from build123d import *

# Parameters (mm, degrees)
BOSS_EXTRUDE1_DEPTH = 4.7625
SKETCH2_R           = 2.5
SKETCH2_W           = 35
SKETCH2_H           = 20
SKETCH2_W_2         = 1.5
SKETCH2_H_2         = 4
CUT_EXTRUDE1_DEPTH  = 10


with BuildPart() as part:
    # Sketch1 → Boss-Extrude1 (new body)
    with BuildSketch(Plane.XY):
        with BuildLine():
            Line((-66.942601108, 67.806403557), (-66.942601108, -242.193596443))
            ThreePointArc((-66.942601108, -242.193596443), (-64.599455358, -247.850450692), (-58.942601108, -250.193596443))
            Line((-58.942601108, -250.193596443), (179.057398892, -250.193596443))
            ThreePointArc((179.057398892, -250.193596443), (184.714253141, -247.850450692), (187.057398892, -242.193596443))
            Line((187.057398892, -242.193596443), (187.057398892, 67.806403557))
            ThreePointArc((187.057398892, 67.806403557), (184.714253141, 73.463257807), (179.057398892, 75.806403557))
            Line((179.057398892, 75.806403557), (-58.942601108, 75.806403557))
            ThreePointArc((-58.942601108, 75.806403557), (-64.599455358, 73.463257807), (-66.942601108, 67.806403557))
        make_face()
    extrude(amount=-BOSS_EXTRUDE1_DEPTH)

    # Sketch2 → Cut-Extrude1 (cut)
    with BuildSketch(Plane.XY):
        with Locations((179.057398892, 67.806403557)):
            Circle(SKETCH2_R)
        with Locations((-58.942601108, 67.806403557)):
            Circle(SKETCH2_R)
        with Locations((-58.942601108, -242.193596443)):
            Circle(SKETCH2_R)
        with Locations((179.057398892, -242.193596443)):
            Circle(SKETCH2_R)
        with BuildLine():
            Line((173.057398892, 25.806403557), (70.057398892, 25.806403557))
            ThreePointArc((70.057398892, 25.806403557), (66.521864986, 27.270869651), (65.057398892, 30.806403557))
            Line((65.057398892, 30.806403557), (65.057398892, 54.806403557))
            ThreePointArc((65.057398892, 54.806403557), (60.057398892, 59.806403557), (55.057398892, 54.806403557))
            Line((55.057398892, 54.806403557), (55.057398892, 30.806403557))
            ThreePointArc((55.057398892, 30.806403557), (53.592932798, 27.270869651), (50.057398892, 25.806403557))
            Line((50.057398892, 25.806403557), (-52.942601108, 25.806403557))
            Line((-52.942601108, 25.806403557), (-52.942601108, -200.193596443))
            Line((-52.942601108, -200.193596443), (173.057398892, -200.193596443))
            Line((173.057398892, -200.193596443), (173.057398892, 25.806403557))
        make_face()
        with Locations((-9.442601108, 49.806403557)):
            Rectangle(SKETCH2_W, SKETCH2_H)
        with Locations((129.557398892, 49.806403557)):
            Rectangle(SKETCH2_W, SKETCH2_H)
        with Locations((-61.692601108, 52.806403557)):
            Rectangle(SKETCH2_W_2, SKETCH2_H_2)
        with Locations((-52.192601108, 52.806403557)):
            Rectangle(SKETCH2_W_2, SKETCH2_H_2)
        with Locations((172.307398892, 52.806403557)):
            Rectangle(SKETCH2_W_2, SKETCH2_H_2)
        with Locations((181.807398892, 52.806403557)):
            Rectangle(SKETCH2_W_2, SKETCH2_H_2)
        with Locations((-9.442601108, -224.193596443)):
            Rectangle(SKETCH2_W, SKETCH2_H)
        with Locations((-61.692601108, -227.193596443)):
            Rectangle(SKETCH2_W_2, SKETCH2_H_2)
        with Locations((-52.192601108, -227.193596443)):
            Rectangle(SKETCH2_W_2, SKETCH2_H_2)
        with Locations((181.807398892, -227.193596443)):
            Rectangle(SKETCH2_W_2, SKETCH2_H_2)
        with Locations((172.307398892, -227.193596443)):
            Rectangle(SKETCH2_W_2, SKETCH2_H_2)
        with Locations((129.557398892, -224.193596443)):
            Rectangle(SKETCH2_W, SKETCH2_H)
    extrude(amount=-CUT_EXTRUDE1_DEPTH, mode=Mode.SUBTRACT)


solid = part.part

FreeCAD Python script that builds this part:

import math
import FreeCAD as App
import Part
import Sketcher
from FreeCAD import Vector

doc = App.newDocument("Part")
body = doc.addObject("PartDesign::Body", "Body")

# Sketch on XY plane
sketch1 = body.newObject("Sketcher::SketchObject", "Sketch")
sketch1.AttachmentSupport = (doc.getObject("XY_Plane"), [""])
sketch1.MapMode = "FlatFace"
sketch1.addGeometry(Part.LineSegment(Vector(-67, 68, 0), Vector(-67, -242, 0)), False)
sketch1.addGeometry(Part.ArcOfCircle(Part.Circle(Vector(-59, -242, 0), Vector(0, 0, 1), 8), math.radians(180), math.radians(270)), False)
sketch1.addGeometry(Part.LineSegment(Vector(-59, -250, 0), Vector(179, -250, 0)), False)
sketch1.addGeometry(Part.ArcOfCircle(Part.Circle(Vector(179, -242, 0), Vector(0, 0, 1), 8), math.radians(-90), math.radians(0)), False)
sketch1.addGeometry(Part.LineSegment(Vector(187, -242, 0), Vector(187, 68, 0)), False)
sketch1.addGeometry(Part.ArcOfCircle(Part.Circle(Vector(179, 68, 0), Vector(0, 0, 1), 8), math.radians(0), math.radians(90)), False)
sketch1.addGeometry(Part.LineSegment(Vector(179, 76, 0), Vector(-59, 76, 0)), False)
sketch1.addGeometry(Part.ArcOfCircle(Part.Circle(Vector(-59, 68, 0), Vector(0, 0, 1), 8), math.radians(90), math.radians(180)), False)
sketch1.addConstraint(Sketcher.Constraint("Tangent", 0, 2, 1, 1))
sketch1.addConstraint(Sketcher.Constraint("Tangent", 1, 2, 2, 1))
sketch1.addConstraint(Sketcher.Constraint("Tangent", 2, 2, 3, 1))
sketch1.addConstraint(Sketcher.Constraint("Tangent", 3, 2, 4, 1))
sketch1.addConstraint(Sketcher.Constraint("Tangent", 4, 2, 5, 1))
sketch1.addConstraint(Sketcher.Constraint("Tangent", 5, 2, 6, 1))
sketch1.addConstraint(Sketcher.Constraint("Tangent", 6, 2, 7, 1))
sketch1.addConstraint(Sketcher.Constraint("Tangent", 7, 2, 0, 1))
sketch1.addConstraint(Sketcher.Constraint("Vertical", 0))
sketch1.addConstraint(Sketcher.Constraint("Horizontal", 2))
sketch1.addConstraint(Sketcher.Constraint("Vertical", 4))
sketch1.addConstraint(Sketcher.Constraint("Horizontal", 6))
sketch1.addConstraint(Sketcher.Constraint("Equal", 1, 3))
sketch1.addConstraint(Sketcher.Constraint("Equal", 3, 5))
sketch1.addConstraint(Sketcher.Constraint("Equal", 5, 7))
sketch1.addConstraint(Sketcher.Constraint("Radius", 1, 8.0))
sketch1.addConstraint(Sketcher.Constraint("DistanceX", 2, 1, 2, 2, 238.0))
sketch1.addConstraint(Sketcher.Constraint("DistanceY", 0, 2, 0, 1, 310.0))
sketch1.addConstraint(Sketcher.Constraint("DistanceX", 1, 3, -1, 1, 58.942601))
sketch1.addConstraint(Sketcher.Constraint("DistanceY", 1, 3, -1, 1, 242.193596))
pad1 = body.newObject("PartDesign::Pad", "Pad")
pad1.Profile = sketch1
pad1.Length = 4.7625
pad1.Reversed = True

# Sketch on XY plane
sketch2 = body.newObject("Sketcher::SketchObject", "Sketch001")
sketch2.AttachmentSupport = (doc.getObject("XY_Plane"), [""])
sketch2.MapMode = "FlatFace"
sketch2.addGeometry(Part.Circle(Vector(179.1, 67.8, 0), Vector(0, 0, 1), 2.5), False)
sketch2.addGeometry(Part.Circle(Vector(-58.9, 67.8, 0), Vector(0, 0, 1), 2.5), False)
sketch2.addGeometry(Part.Circle(Vector(-58.9, -242.2, 0), Vector(0, 0, 1), 2.5), False)
sketch2.addGeometry(Part.Circle(Vector(179.1, -242.2, 0), Vector(0, 0, 1), 2.5), False)
sketch2.addGeometry(Part.LineSegment(Vector(173.1, 25.8, 0), Vector(70.1, 25.8, 0)), False)
sketch2.addGeometry(Part.ArcOfCircle(Part.Circle(Vector(70.1, 30.8, 0), Vector(0, 0, 1), 5), math.radians(180), math.radians(270)), False)
sketch2.addGeometry(Part.LineSegment(Vector(65.1, 30.8, 0), Vector(65.1, 54.8, 0)), False)
sketch2.addGeometry(Part.ArcOfCircle(Part.Circle(Vector(60.1, 54.8, 0), Vector(0, 0, 1), 5), math.radians(0), math.radians(180)), False)
sketch2.addGeometry(Part.LineSegment(Vector(55.1, 54.8, 0), Vector(55.1, 30.8, 0)), False)
sketch2.addGeometry(Part.ArcOfCircle(Part.Circle(Vector(50.1, 30.8, 0), Vector(0, 0, 1), 5), math.radians(-90), math.radians(0)), False)
sketch2.addGeometry(Part.LineSegment(Vector(50.1, 25.8, 0), Vector(-52.9, 25.8, 0)), False)
sketch2.addGeometry(Part.LineSegment(Vector(-52.9, 25.8, 0), Vector(-52.9, -200.2, 0)), False)
sketch2.addGeometry(Part.LineSegment(Vector(-52.9, -200.2, 0), Vector(173.1, -200.2, 0)), False)
sketch2.addGeometry(Part.LineSegment(Vector(173.1, -200.2, 0), Vector(173.1, 25.8, 0)), False)
sketch2.addGeometry(Part.LineSegment(Vector(-26.9, 59.8, 0), Vector(-26.9, 39.8, 0)), False)
sketch2.addGeometry(Part.LineSegment(Vector(-26.9, 39.8, 0), Vector(8.1, 39.8, 0)), False)
sketch2.addGeometry(Part.LineSegment(Vector(8.1, 39.8, 0), Vector(8.1, 59.8, 0)), False)
sketch2.addGeometry(Part.LineSegment(Vector(8.1, 59.8, 0), Vector(-26.9, 59.8, 0)), False)
sketch2.addGeometry(Part.LineSegment(Vector(112.1, 59.8, 0), Vector(112.1, 39.8, 0)), False)
sketch2.addGeometry(Part.LineSegment(Vector(112.1, 39.8, 0), Vector(147.1, 39.8, 0)), False)
sketch2.addGeometry(Part.LineSegment(Vector(147.1, 39.8, 0), Vector(147.1, 59.8, 0)), False)
sketch2.addGeometry(Part.LineSegment(Vector(147.1, 59.8, 0), Vector(112.1, 59.8, 0)), False)
sketch2.addGeometry(Part.LineSegment(Vector(-62.4, 54.8, 0), Vector(-62.4, 50.8, 0)), False)
sketch2.addGeometry(Part.LineSegment(Vector(-62.4, 50.8, 0), Vector(-60.9, 50.8, 0)), False)
sketch2.addGeometry(Part.LineSegment(Vector(-60.9, 50.8, 0), Vector(-60.9, 54.8, 0)), False)
sketch2.addGeometry(Part.LineSegment(Vector(-60.9, 54.8, 0), Vector(-62.4, 54.8, 0)), False)
sketch2.addGeometry(Part.LineSegment(Vector(-52.9, 54.8, 0), Vector(-52.9, 50.8, 0)), False)
sketch2.addGeometry(Part.LineSegment(Vector(-52.9, 50.8, 0), Vector(-51.4, 50.8, 0)), False)
sketch2.addGeometry(Part.LineSegment(Vector(-51.4, 50.8, 0), Vector(-51.4, 54.8, 0)), False)
sketch2.addGeometry(Part.LineSegment(Vector(-51.4, 54.8, 0), Vector(-52.9, 54.8, 0)), False)
sketch2.addGeometry(Part.LineSegment(Vector(171.6, 54.8, 0), Vector(171.6, 50.8, 0)), False)
sketch2.addGeometry(Part.LineSegment(Vector(171.6, 50.8, 0), Vector(173.1, 50.8, 0)), False)
sketch2.addGeometry(Part.LineSegment(Vector(173.1, 50.8, 0), Vector(173.1, 54.8, 0)), False)
sketch2.addGeometry(Part.LineSegment(Vector(173.1, 54.8, 0), Vector(171.6, 54.8, 0)), False)
sketch2.addGeometry(Part.LineSegment(Vector(181.1, 54.8, 0), Vector(181.1, 50.8, 0)), False)
sketch2.addGeometry(Part.LineSegment(Vector(181.1, 50.8, 0), Vector(182.6, 50.8, 0)), False)
sketch2.addGeometry(Part.LineSegment(Vector(182.6, 50.8, 0), Vector(182.6, 54.8, 0)), False)
sketch2.addGeometry(Part.LineSegment(Vector(182.6, 54.8, 0), Vector(181.1, 54.8, 0)), False)
sketch2.addGeometry(Part.LineSegment(Vector(-26.9, -214.2, 0), Vector(-26.9, -234.2, 0)), False)
sketch2.addGeometry(Part.LineSegment(Vector(-26.9, -234.2, 0), Vector(8.1, -234.2, 0)), False)
sketch2.addGeometry(Part.LineSegment(Vector(8.1, -234.2, 0), Vector(8.1, -214.2, 0)), False)
sketch2.addGeometry(Part.LineSegment(Vector(8.1, -214.2, 0), Vector(-26.9, -214.2, 0)), False)
sketch2.addGeometry(Part.LineSegment(Vector(-62.4, -225.2, 0), Vector(-62.4, -229.2, 0)), False)
sketch2.addGeometry(Part.LineSegment(Vector(-62.4, -229.2, 0), Vector(-60.9, -229.2, 0)), False)
sketch2.addGeometry(Part.LineSegment(Vector(-60.9, -229.2, 0), Vector(-60.9, -225.2, 0)), False)
sketch2.addGeometry(Part.LineSegment(Vector(-60.9, -225.2, 0), Vector(-62.4, -225.2, 0)), False)
sketch2.addGeometry(Part.LineSegment(Vector(-52.9, -225.2, 0), Vector(-52.9, -229.2, 0)), False)
sketch2.addGeometry(Part.LineSegment(Vector(-52.9, -229.2, 0), Vector(-51.4, -229.2, 0)), False)
sketch2.addGeometry(Part.LineSegment(Vector(-51.4, -229.2, 0), Vector(-51.4, -225.2, 0)), False)
sketch2.addGeometry(Part.LineSegment(Vector(-51.4, -225.2, 0), Vector(-52.9, -225.2, 0)), False)
sketch2.addGeometry(Part.LineSegment(Vector(181.1, -225.2, 0), Vector(181.1, -229.2, 0)), False)
sketch2.addGeometry(Part.LineSegment(Vector(181.1, -229.2, 0), Vector(182.6, -229.2, 0)), False)
sketch2.addGeometry(Part.LineSegment(Vector(182.6, -229.2, 0), Vector(182.6, -225.2, 0)), False)
sketch2.addGeometry(Part.LineSegment(Vector(182.6, -225.2, 0), Vector(181.1, -225.2, 0)), False)
sketch2.addGeometry(Part.LineSegment(Vector(171.6, -225.2, 0), Vector(171.6, -229.2, 0)), False)
sketch2.addGeometry(Part.LineSegment(Vector(171.6, -229.2, 0), Vector(173.1, -229.2, 0)), False)
sketch2.addGeometry(Part.LineSegment(Vector(173.1, -229.2, 0), Vector(173.1, -225.2, 0)), False)
sketch2.addGeometry(Part.LineSegment(Vector(173.1, -225.2, 0), Vector(171.6, -225.2, 0)), False)
sketch2.addGeometry(Part.LineSegment(Vector(112.1, -214.2, 0), Vector(112.1, -234.2, 0)), False)
sketch2.addGeometry(Part.LineSegment(Vector(112.1, -234.2, 0), Vector(147.1, -234.2, 0)), False)
sketch2.addGeometry(Part.LineSegment(Vector(147.1, -234.2, 0), Vector(147.1, -214.2, 0)), False)
sketch2.addGeometry(Part.LineSegment(Vector(147.1, -214.2, 0), Vector(112.1, -214.2, 0)), False)
sketch2.addConstraint(Sketcher.Constraint("Tangent", 4, 2, 5, 2))
sketch2.addConstraint(Sketcher.Constraint("Tangent", 5, 1, 6, 1))
sketch2.addConstraint(Sketcher.Constraint("Tangent", 6, 2, 7, 1))
sketch2.addConstraint(Sketcher.Constraint("Tangent", 7, 2, 8, 1))
sketch2.addConstraint(Sketcher.Constraint("Tangent", 8, 2, 9, 2))
sketch2.addConstraint(Sketcher.Constraint("Tangent", 9, 1, 10, 1))
sketch2.addConstraint(Sketcher.Constraint("Coincident", 10, 2, 11, 1))
sketch2.addConstraint(Sketcher.Constraint("Coincident", 11, 2, 12, 1))
sketch2.addConstraint(Sketcher.Constraint("Coincident", 12, 2, 13, 1))
sketch2.addConstraint(Sketcher.Constraint("Coincident", 13, 2, 4, 1))
sketch2.addConstraint(Sketcher.Constraint("Coincident", 14, 2, 15, 1))
sketch2.addConstraint(Sketcher.Constraint("Coincident", 15, 2, 16, 1))
sketch2.addConstraint(Sketcher.Constraint("Coincident", 16, 2, 17, 1))
sketch2.addConstraint(Sketcher.Constraint("Coincident", 17, 2, 14, 1))
sketch2.addConstraint(Sketcher.Constraint("Coincident", 18, 2, 19, 1))
sketch2.addConstraint(Sketcher.Constraint("Coincident", 19, 2, 20, 1))
sketch2.addConstraint(Sketcher.Constraint("Coincident", 20, 2, 21, 1))
sketch2.addConstraint(Sketcher.Constraint("Coincident", 21, 2, 18, 1))
sketch2.addConstraint(Sketcher.Constraint("Coincident", 22, 2, 23, 1))
sketch2.addConstraint(Sketcher.Constraint("Coincident", 23, 2, 24, 1))
sketch2.addConstraint(Sketcher.Constraint("Coincident", 24, 2, 25, 1))
sketch2.addConstraint(Sketcher.Constraint("Coincident", 25, 2, 22, 1))
sketch2.addConstraint(Sketcher.Constraint("Coincident", 26, 2, 27, 1))
sketch2.addConstraint(Sketcher.Constraint("Coincident", 27, 2, 28, 1))
sketch2.addConstraint(Sketcher.Constraint("Coincident", 28, 2, 29, 1))
sketch2.addConstraint(Sketcher.Constraint("Coincident", 29, 2, 26, 1))
sketch2.addConstraint(Sketcher.Constraint("Coincident", 30, 2, 31, 1))
sketch2.addConstraint(Sketcher.Constraint("Coincident", 31, 2, 32, 1))
sketch2.addConstraint(Sketcher.Constraint("Coincident", 32, 2, 33, 1))
sketch2.addConstraint(Sketcher.Constraint("Coincident", 33, 2, 30, 1))
sketch2.addConstraint(Sketcher.Constraint("Coincident", 34, 2, 35, 1))
sketch2.addConstraint(Sketcher.Constraint("Coincident", 35, 2, 36, 1))
sketch2.addConstraint(Sketcher.Constraint("Coincident", 36, 2, 37, 1))
sketch2.addConstraint(Sketcher.Constraint("Coincident", 37, 2, 34, 1))
sketch2.addConstraint(Sketcher.Constraint("Coincident", 38, 2, 39, 1))
sketch2.addConstraint(Sketcher.Constraint("Coincident", 39, 2, 40, 1))
sketch2.addConstraint(Sketcher.Constraint("Coincident", 40, 2, 41, 1))
sketch2.addConstraint(Sketcher.Constraint("Coincident", 41, 2, 38, 1))
sketch2.addConstraint(Sketcher.Constraint("Coincident", 42, 2, 43, 1))
sketch2.addConstraint(Sketcher.Constraint("Coincident", 43, 2, 44, 1))
sketch2.addConstraint(Sketcher.Constraint("Coincident", 44, 2, 45, 1))
sketch2.addConstraint(Sketcher.Constraint("Coincident", 45, 2, 42, 1))
sketch2.addConstraint(Sketcher.Constraint("Coincident", 46, 2, 47, 1))
sketch2.addConstraint(Sketcher.Constraint("Coincident", 47, 2, 48, 1))
sketch2.addConstraint(Sketcher.Constraint("Coincident", 48, 2, 49, 1))
sketch2.addConstraint(Sketcher.Constraint("Coincident", 49, 2, 46, 1))
sketch2.addConstraint(Sketcher.Constraint("Coincident", 50, 2, 51, 1))
sketch2.addConstraint(Sketcher.Constraint("Coincident", 51, 2, 52, 1))
sketch2.addConstraint(Sketcher.Constraint("Coincident", 52, 2, 53, 1))
sketch2.addConstraint(Sketcher.Constraint("Coincident", 53, 2, 50, 1))
sketch2.addConstraint(Sketcher.Constraint("Coincident", 54, 2, 55, 1))
sketch2.addConstraint(Sketcher.Constraint("Coincident", 55, 2, 56, 1))
sketch2.addConstraint(Sketcher.Constraint("Coincident", 56, 2, 57, 1))
sketch2.addConstraint(Sketcher.Constraint("Coincident", 57, 2, 54, 1))
sketch2.addConstraint(Sketcher.Constraint("Coincident", 58, 2, 59, 1))
sketch2.addConstraint(Sketcher.Constraint("Coincident", 59, 2, 60, 1))
sketch2.addConstraint(Sketcher.Constraint("Coincident", 60, 2, 61, 1))
sketch2.addConstraint(Sketcher.Constraint("Coincident", 61, 2, 58, 1))
sketch2.addConstraint(Sketcher.Constraint("Horizontal", 4))
sketch2.addConstraint(Sketcher.Constraint("Vertical", 6))
sketch2.addConstraint(Sketcher.Constraint("Vertical", 8))
sketch2.addConstraint(Sketcher.Constraint("Horizontal", 10))
sketch2.addConstraint(Sketcher.Constraint("Vertical", 11))
sketch2.addConstraint(Sketcher.Constraint("Horizontal", 12))
sketch2.addConstraint(Sketcher.Constraint("Vertical", 13))
sketch2.addConstraint(Sketcher.Constraint("Vertical", 14))
sketch2.addConstraint(Sketcher.Constraint("Horizontal", 15))
sketch2.addConstraint(Sketcher.Constraint("Vertical", 16))
sketch2.addConstraint(Sketcher.Constraint("Horizontal", 17))
sketch2.addConstraint(Sketcher.Constraint("Vertical", 18))
sketch2.addConstraint(Sketcher.Constraint("Horizontal", 19))
sketch2.addConstraint(Sketcher.Constraint("Vertical", 20))
sketch2.addConstraint(Sketcher.Constraint("Horizontal", 21))
sketch2.addConstraint(Sketcher.Constraint("Vertical", 22))
sketch2.addConstraint(Sketcher.Constraint("Horizontal", 23))
sketch2.addConstraint(Sketcher.Constraint("Vertical", 24))
sketch2.addConstraint(Sketcher.Constraint("Horizontal", 25))
sketch2.addConstraint(Sketcher.Constraint("Vertical", 26))
sketch2.addConstraint(Sketcher.Constraint("Horizontal", 27))
sketch2.addConstraint(Sketcher.Constraint("Vertical", 28))
sketch2.addConstraint(Sketcher.Constraint("Horizontal", 29))
sketch2.addConstraint(Sketcher.Constraint("Vertical", 30))
sketch2.addConstraint(Sketcher.Constraint("Horizontal", 31))
sketch2.addConstraint(Sketcher.Constraint("Vertical", 32))
sketch2.addConstraint(Sketcher.Constraint("Horizontal", 33))
sketch2.addConstraint(Sketcher.Constraint("Vertical", 34))
sketch2.addConstraint(Sketcher.Constraint("Horizontal", 35))
sketch2.addConstraint(Sketcher.Constraint("Vertical", 36))
sketch2.addConstraint(Sketcher.Constraint("Horizontal", 37))
sketch2.addConstraint(Sketcher.Constraint("Vertical", 38))
sketch2.addConstraint(Sketcher.Constraint("Horizontal", 39))
sketch2.addConstraint(Sketcher.Constraint("Vertical", 40))
sketch2.addConstraint(Sketcher.Constraint("Horizontal", 41))
sketch2.addConstraint(Sketcher.Constraint("Vertical", 42))
sketch2.addConstraint(Sketcher.Constraint("Horizontal", 43))
sketch2.addConstraint(Sketcher.Constraint("Vertical", 44))
sketch2.addConstraint(Sketcher.Constraint("Horizontal", 45))
sketch2.addConstraint(Sketcher.Constraint("Vertical", 46))
sketch2.addConstraint(Sketcher.Constraint("Horizontal", 47))
sketch2.addConstraint(Sketcher.Constraint("Vertical", 48))
sketch2.addConstraint(Sketcher.Constraint("Horizontal", 49))
sketch2.addConstraint(Sketcher.Constraint("Vertical", 50))
sketch2.addConstraint(Sketcher.Constraint("Horizontal", 51))
sketch2.addConstraint(Sketcher.Constraint("Vertical", 52))
sketch2.addConstraint(Sketcher.Constraint("Horizontal", 53))
sketch2.addConstraint(Sketcher.Constraint("Vertical", 54))
sketch2.addConstraint(Sketcher.Constraint("Horizontal", 55))
sketch2.addConstraint(Sketcher.Constraint("Vertical", 56))
sketch2.addConstraint(Sketcher.Constraint("Horizontal", 57))
sketch2.addConstraint(Sketcher.Constraint("Vertical", 58))
sketch2.addConstraint(Sketcher.Constraint("Horizontal", 59))
sketch2.addConstraint(Sketcher.Constraint("Vertical", 60))
sketch2.addConstraint(Sketcher.Constraint("Horizontal", 61))
sketch2.addConstraint(Sketcher.Constraint("Equal", 0, 1))
sketch2.addConstraint(Sketcher.Constraint("Equal", 1, 2))
sketch2.addConstraint(Sketcher.Constraint("Equal", 2, 3))
sketch2.addConstraint(Sketcher.Constraint("Equal", 5, 7))
sketch2.addConstraint(Sketcher.Constraint("Equal", 7, 9))
sketch2.addConstraint(Sketcher.Constraint("Horizontal", 0, 3, 1, 3))
sketch2.addConstraint(Sketcher.Constraint("Horizontal", 2, 3, 3, 3))
sketch2.addConstraint(Sketcher.Constraint("Horizontal", 5, 3, 9, 3))
sketch2.addConstraint(Sketcher.Constraint("Horizontal", 15, 2, 18, 2))
sketch2.addConstraint(Sketcher.Constraint("Horizontal", 17, 2, 20, 2))
sketch2.addConstraint(Sketcher.Constraint("Horizontal", 7, 2, 24, 2))
sketch2.addConstraint(Sketcher.Constraint("Horizontal", 23, 2, 26, 2))
sketch2.addConstraint(Sketcher.Constraint("Horizontal", 25, 2, 28, 2))
sketch2.addConstraint(Sketcher.Constraint("Horizontal", 27, 2, 30, 2))
sketch2.addConstraint(Sketcher.Constraint("Horizontal", 29, 2, 32, 2))
sketch2.addConstraint(Sketcher.Constraint("Horizontal", 31, 2, 34, 2))
sketch2.addConstraint(Sketcher.Constraint("Horizontal", 33, 2, 36, 2))
sketch2.addConstraint(Sketcher.Constraint("Horizontal", 43, 2, 46, 2))
sketch2.addConstraint(Sketcher.Constraint("Horizontal", 45, 2, 48, 2))
sketch2.addConstraint(Sketcher.Constraint("Horizontal", 47, 2, 50, 2))
sketch2.addConstraint(Sketcher.Constraint("Horizontal", 49, 2, 52, 2))
sketch2.addConstraint(Sketcher.Constraint("Horizontal", 51, 2, 54, 2))
sketch2.addConstraint(Sketcher.Constraint("Horizontal", 53, 2, 56, 2))
sketch2.addConstraint(Sketcher.Constraint("Horizontal", 39, 2, 58, 2))
sketch2.addConstraint(Sketcher.Constraint("Horizontal", 41, 2, 60, 2))
sketch2.addConstraint(Sketcher.Constraint("Vertical", 1, 3, 2, 3))
sketch2.addConstraint(Sketcher.Constraint("Vertical", 0, 3, 3, 3))
sketch2.addConstraint(Sketcher.Constraint("Vertical", 11, 2, 26, 2))
sketch2.addConstraint(Sketcher.Constraint("Vertical", 13, 2, 31, 2))
sketch2.addConstraint(Sketcher.Constraint("Vertical", 17, 2, 38, 2))
sketch2.addConstraint(Sketcher.Constraint("Vertical", 16, 2, 39, 2))
sketch2.addConstraint(Sketcher.Constraint("Vertical", 25, 2, 42, 2))
sketch2.addConstraint(Sketcher.Constraint("Vertical", 24, 2, 43, 2))
sketch2.addConstraint(Sketcher.Constraint("Vertical", 29, 2, 46, 2))
sketch2.addConstraint(Sketcher.Constraint("Vertical", 28, 2, 47, 2))
sketch2.addConstraint(Sketcher.Constraint("Vertical", 37, 2, 50, 2))
sketch2.addConstraint(Sketcher.Constraint("Vertical", 36, 2, 51, 2))
sketch2.addConstraint(Sketcher.Constraint("Vertical", 33, 2, 54, 2))
sketch2.addConstraint(Sketcher.Constraint("Vertical", 32, 2, 55, 2))
sketch2.addConstraint(Sketcher.Constraint("Vertical", 21, 2, 58, 2))
sketch2.addConstraint(Sketcher.Constraint("Vertical", 20, 2, 59, 2))
sketch2.addConstraint(Sketcher.Constraint("Equal", 4, 10))
sketch2.addConstraint(Sketcher.Constraint("Equal", 17, 19))
sketch2.addConstraint(Sketcher.Constraint("Equal", 25, 27))
sketch2.addConstraint(Sketcher.Constraint("Equal", 29, 31))
sketch2.addConstraint(Sketcher.Constraint("Equal", 33, 35))
sketch2.addConstraint(Sketcher.Constraint("Equal", 12, 11))
sketch2.addConstraint(Sketcher.Constraint("Equal", 20, 38))
sketch2.addConstraint(Sketcher.Constraint("Equal", 36, 42))
sketch2.addConstraint(Sketcher.Constraint("Diameter", 0, 5.0))
sketch2.addConstraint(Sketcher.Constraint("Radius", 5, 5.0))
sketch2.addConstraint(Sketcher.Constraint("DistanceX", 4, 2, 4, 1, 103.0))
sketch2.addConstraint(Sketcher.Constraint("DistanceX", 15, 1, 15, 2, 35.0))
sketch2.addConstraint(Sketcher.Constraint("DistanceY", 6, 1, 6, 2, 24.0))
sketch2.addConstraint(Sketcher.Constraint("DistanceY", 14, 2, 14, 1, 20.0))
sketch2.addConstraint(Sketcher.Constraint("DistanceY", 22, 2, 22, 1, 4.0))
sketch2.addConstraint(Sketcher.Constraint("DistanceX", 23, 1, 23, 2, 1.5))
sketch2.addConstraint(Sketcher.Constraint("DistanceX", -1, 1, 0, 3, 179.057399))
sketch2.addConstraint(Sketcher.Constraint("DistanceX", 1, 3, -1, 1, 58.942601))
sketch2.addConstraint(Sketcher.Constraint("DistanceX", -1, 1, 5, 3, 70.057399))
sketch2.addConstraint(Sketcher.Constraint("DistanceX", 14, 2, -1, 1, 26.942601))
sketch2.addConstraint(Sketcher.Constraint("DistanceX", -1, 1, 18, 2, 112.057399))
sketch2.addConstraint(Sketcher.Constraint("DistanceX", 22, 2, -1, 1, 62.442601))
sketch2.addConstraint(Sketcher.Constraint("DistanceX", -1, 1, 34, 2, 181.057399))
sketch2.addConstraint(Sketcher.Constraint("DistanceY", -1, 1, 0, 3, 67.806404))
sketch2.addConstraint(Sketcher.Constraint("DistanceY", 2, 3, -1, 1, 242.193596))
sketch2.addConstraint(Sketcher.Constraint("DistanceY", -1, 1, 5, 3, 30.806404))
sketch2.addConstraint(Sketcher.Constraint("DistanceY", -1, 1, 14, 2, 39.806404))
sketch2.addConstraint(Sketcher.Constraint("DistanceY", 38, 2, -1, 1, 234.193596))
sketch2.addConstraint(Sketcher.Constraint("DistanceY", 42, 2, -1, 1, 229.193596))
pocket1 = body.newObject("PartDesign::Pocket", "Pocket")
pocket1.Profile = sketch2
pocket1.Length = 10

doc.recompute()
